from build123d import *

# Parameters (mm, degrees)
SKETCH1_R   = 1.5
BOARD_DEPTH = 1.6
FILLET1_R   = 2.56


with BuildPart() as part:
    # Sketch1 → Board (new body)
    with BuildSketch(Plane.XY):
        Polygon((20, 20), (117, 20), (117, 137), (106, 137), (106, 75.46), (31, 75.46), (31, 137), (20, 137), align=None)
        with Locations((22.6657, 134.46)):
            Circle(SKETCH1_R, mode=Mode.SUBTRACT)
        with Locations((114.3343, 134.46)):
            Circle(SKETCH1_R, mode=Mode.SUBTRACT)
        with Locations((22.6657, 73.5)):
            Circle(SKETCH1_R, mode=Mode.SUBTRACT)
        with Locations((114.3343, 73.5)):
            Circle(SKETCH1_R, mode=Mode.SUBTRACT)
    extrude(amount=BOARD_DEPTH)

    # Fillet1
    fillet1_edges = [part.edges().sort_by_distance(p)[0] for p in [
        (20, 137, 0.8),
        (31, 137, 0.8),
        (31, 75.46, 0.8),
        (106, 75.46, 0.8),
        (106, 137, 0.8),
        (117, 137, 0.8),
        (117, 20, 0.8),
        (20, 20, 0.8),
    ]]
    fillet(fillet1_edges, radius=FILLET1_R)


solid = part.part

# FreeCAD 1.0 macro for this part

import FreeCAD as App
import Part
import Sketcher
from FreeCAD import Vector


def edges_at(feature, points):
    """Names of the edges that pass closest to the given points."""
    edges = feature.Shape.Edges
    near = lambda p: min(range(len(edges)), key=lambda i: edges[i].distToShape(Part.Vertex(*p))[0])
    return sorted({f"Edge{near(p) + 1}" for p in points})

doc = App.newDocument("Part")
body = doc.addObject("PartDesign::Body", "Body")

# Sketch on XY plane
sketch1 = doc.addObject("Sketcher::SketchObject", "Sketch")
body.addObject(sketch1)
sketch1.AttachmentSupport = (doc.XY_Plane, [""])
sketch1.MapMode = "FlatFace"
sketch1.addGeometry([
    Part.LineSegment(Vector(20, 20, 0), Vector(117, 20, 0)),  # 0
    Part.LineSegment(Vector(117, 20, 0), Vector(117, 137, 0)),  # 1
    Part.LineSegment(Vector(117, 137, 0), Vector(106, 137, 0)),  # 2
    Part.LineSegment(Vector(106, 137, 0), Vector(106, 75.5, 0)),  # 3
    Part.LineSegment(Vector(106, 75.5, 0), Vector(31, 75.5, 0)),  # 4
    Part.LineSegment(Vector(31, 75.5, 0), Vector(31, 137, 0)),  # 5
    Part.LineSegment(Vector(31, 137, 0), Vector(20, 137, 0)),  # 6
    Part.LineSegment(Vector(20, 137, 0), Vector(20, 20, 0)),  # 7
    Part.Circle(Vector(22.7, 73.5, 0), Vector(0, 0, 1), 1.5),  # 8
    Part.Circle(Vector(114.3, 73.5, 0), Vector(0, 0, 1), 1.5),  # 9
    Part.Circle(Vector(22.7, 134.5, 0), Vector(0, 0, 1), 1.5),  # 10
    Part.Circle(Vector(114.3, 134.5, 0), Vector(0, 0, 1), 1.5),  # 11
], False)
sketch1.addConstraint([
    Sketcher.Constraint("Coincident", 0, 2, 1, 1),
    Sketcher.Constraint("Coincident", 1, 2, 2, 1),
    Sketcher.Constraint("Coincident", 2, 2, 3, 1),
    Sketcher.Constraint("Coincident", 3, 2, 4, 1),
    Sketcher.Constraint("Coincident", 4, 2, 5, 1),
    Sketcher.Constraint("Coincident", 5, 2, 6, 1),
    Sketcher.Constraint("Coincident", 6, 2, 7, 1),
    Sketcher.Constraint("Coincident", 7, 2, 0, 1),
    Sketcher.Constraint("Horizontal", 0),
    Sketcher.Constraint("Vertical", 1),
    Sketcher.Constraint("Horizontal", 2),
    Sketcher.Constraint("Vertical", 3),
    Sketcher.Constraint("Horizontal", 4),
    Sketcher.Constraint("Vertical", 5),
    Sketcher.Constraint("Horizontal", 6),
    Sketcher.Constraint("Vertical", 7),
    Sketcher.Constraint("Equal", 8, 9),
    Sketcher.Constraint("Equal", 9, 10),
    Sketcher.Constraint("Equal", 10, 11),
    Sketcher.Constraint("Horizontal", 8, 3, 9, 3),
    Sketcher.Constraint("Horizontal", 10, 3, 11, 3),
    Sketcher.Constraint("Horizontal", 2, 2, 5, 2),
    Sketcher.Constraint("Vertical", 8, 3, 10, 3),
    Sketcher.Constraint("Vertical", 9, 3, 11, 3),
    Sketcher.Constraint("Equal", 2, 6),
    Sketcher.Constraint("Diameter", 8, 3.0),
    Sketcher.Constraint("DistanceX", 0, 1, 0, 2, 97.0),
    Sketcher.Constraint("DistanceX", 2, 2, 2, 1, 11.0),
    Sketcher.Constraint("DistanceY", 1, 1, 1, 2, 117.0),
    Sketcher.Constraint("DistanceX", -1, 1, 0, 2, 117.0),
    Sketcher.Constraint("DistanceY", -1, 1, 0, 2, 20.0),
    Sketcher.Constraint("DistanceY", 3, 2, 11, 3, 59.0),
    Sketcher.Constraint("DistanceY", 3, 2, 3, 1, 61.54),
    Sketcher.Constraint("DistanceY", -1, 1, 8, 3, 73.5),
    Sketcher.Constraint("DistanceX", -1, 1, 8, 3, 22.6657),
    Sketcher.Constraint("DistanceX", -1, 1, 9, 3, 114.3343),
])
pad1 = doc.addObject("PartDesign::Pad", "Pad")
body.addObject(pad1)
pad1.Profile = sketch1
pad1.Length = 1.6
doc.recompute()

fillet = doc.addObject("PartDesign::Fillet", "Fillet")
body.addObject(fillet)
fillet.Base = (pad1, edges_at(pad1, [
    (20, 137, 0.8),
    (31, 137, 0.8),
    (31, 75.46, 0.8),
    (106, 75.46, 0.8),
    (106, 137, 0.8),
    (117, 137, 0.8),
    (117, 20, 0.8),
    (20, 20, 0.8),
]))
fillet.Radius = 2.56

doc.recompute()
